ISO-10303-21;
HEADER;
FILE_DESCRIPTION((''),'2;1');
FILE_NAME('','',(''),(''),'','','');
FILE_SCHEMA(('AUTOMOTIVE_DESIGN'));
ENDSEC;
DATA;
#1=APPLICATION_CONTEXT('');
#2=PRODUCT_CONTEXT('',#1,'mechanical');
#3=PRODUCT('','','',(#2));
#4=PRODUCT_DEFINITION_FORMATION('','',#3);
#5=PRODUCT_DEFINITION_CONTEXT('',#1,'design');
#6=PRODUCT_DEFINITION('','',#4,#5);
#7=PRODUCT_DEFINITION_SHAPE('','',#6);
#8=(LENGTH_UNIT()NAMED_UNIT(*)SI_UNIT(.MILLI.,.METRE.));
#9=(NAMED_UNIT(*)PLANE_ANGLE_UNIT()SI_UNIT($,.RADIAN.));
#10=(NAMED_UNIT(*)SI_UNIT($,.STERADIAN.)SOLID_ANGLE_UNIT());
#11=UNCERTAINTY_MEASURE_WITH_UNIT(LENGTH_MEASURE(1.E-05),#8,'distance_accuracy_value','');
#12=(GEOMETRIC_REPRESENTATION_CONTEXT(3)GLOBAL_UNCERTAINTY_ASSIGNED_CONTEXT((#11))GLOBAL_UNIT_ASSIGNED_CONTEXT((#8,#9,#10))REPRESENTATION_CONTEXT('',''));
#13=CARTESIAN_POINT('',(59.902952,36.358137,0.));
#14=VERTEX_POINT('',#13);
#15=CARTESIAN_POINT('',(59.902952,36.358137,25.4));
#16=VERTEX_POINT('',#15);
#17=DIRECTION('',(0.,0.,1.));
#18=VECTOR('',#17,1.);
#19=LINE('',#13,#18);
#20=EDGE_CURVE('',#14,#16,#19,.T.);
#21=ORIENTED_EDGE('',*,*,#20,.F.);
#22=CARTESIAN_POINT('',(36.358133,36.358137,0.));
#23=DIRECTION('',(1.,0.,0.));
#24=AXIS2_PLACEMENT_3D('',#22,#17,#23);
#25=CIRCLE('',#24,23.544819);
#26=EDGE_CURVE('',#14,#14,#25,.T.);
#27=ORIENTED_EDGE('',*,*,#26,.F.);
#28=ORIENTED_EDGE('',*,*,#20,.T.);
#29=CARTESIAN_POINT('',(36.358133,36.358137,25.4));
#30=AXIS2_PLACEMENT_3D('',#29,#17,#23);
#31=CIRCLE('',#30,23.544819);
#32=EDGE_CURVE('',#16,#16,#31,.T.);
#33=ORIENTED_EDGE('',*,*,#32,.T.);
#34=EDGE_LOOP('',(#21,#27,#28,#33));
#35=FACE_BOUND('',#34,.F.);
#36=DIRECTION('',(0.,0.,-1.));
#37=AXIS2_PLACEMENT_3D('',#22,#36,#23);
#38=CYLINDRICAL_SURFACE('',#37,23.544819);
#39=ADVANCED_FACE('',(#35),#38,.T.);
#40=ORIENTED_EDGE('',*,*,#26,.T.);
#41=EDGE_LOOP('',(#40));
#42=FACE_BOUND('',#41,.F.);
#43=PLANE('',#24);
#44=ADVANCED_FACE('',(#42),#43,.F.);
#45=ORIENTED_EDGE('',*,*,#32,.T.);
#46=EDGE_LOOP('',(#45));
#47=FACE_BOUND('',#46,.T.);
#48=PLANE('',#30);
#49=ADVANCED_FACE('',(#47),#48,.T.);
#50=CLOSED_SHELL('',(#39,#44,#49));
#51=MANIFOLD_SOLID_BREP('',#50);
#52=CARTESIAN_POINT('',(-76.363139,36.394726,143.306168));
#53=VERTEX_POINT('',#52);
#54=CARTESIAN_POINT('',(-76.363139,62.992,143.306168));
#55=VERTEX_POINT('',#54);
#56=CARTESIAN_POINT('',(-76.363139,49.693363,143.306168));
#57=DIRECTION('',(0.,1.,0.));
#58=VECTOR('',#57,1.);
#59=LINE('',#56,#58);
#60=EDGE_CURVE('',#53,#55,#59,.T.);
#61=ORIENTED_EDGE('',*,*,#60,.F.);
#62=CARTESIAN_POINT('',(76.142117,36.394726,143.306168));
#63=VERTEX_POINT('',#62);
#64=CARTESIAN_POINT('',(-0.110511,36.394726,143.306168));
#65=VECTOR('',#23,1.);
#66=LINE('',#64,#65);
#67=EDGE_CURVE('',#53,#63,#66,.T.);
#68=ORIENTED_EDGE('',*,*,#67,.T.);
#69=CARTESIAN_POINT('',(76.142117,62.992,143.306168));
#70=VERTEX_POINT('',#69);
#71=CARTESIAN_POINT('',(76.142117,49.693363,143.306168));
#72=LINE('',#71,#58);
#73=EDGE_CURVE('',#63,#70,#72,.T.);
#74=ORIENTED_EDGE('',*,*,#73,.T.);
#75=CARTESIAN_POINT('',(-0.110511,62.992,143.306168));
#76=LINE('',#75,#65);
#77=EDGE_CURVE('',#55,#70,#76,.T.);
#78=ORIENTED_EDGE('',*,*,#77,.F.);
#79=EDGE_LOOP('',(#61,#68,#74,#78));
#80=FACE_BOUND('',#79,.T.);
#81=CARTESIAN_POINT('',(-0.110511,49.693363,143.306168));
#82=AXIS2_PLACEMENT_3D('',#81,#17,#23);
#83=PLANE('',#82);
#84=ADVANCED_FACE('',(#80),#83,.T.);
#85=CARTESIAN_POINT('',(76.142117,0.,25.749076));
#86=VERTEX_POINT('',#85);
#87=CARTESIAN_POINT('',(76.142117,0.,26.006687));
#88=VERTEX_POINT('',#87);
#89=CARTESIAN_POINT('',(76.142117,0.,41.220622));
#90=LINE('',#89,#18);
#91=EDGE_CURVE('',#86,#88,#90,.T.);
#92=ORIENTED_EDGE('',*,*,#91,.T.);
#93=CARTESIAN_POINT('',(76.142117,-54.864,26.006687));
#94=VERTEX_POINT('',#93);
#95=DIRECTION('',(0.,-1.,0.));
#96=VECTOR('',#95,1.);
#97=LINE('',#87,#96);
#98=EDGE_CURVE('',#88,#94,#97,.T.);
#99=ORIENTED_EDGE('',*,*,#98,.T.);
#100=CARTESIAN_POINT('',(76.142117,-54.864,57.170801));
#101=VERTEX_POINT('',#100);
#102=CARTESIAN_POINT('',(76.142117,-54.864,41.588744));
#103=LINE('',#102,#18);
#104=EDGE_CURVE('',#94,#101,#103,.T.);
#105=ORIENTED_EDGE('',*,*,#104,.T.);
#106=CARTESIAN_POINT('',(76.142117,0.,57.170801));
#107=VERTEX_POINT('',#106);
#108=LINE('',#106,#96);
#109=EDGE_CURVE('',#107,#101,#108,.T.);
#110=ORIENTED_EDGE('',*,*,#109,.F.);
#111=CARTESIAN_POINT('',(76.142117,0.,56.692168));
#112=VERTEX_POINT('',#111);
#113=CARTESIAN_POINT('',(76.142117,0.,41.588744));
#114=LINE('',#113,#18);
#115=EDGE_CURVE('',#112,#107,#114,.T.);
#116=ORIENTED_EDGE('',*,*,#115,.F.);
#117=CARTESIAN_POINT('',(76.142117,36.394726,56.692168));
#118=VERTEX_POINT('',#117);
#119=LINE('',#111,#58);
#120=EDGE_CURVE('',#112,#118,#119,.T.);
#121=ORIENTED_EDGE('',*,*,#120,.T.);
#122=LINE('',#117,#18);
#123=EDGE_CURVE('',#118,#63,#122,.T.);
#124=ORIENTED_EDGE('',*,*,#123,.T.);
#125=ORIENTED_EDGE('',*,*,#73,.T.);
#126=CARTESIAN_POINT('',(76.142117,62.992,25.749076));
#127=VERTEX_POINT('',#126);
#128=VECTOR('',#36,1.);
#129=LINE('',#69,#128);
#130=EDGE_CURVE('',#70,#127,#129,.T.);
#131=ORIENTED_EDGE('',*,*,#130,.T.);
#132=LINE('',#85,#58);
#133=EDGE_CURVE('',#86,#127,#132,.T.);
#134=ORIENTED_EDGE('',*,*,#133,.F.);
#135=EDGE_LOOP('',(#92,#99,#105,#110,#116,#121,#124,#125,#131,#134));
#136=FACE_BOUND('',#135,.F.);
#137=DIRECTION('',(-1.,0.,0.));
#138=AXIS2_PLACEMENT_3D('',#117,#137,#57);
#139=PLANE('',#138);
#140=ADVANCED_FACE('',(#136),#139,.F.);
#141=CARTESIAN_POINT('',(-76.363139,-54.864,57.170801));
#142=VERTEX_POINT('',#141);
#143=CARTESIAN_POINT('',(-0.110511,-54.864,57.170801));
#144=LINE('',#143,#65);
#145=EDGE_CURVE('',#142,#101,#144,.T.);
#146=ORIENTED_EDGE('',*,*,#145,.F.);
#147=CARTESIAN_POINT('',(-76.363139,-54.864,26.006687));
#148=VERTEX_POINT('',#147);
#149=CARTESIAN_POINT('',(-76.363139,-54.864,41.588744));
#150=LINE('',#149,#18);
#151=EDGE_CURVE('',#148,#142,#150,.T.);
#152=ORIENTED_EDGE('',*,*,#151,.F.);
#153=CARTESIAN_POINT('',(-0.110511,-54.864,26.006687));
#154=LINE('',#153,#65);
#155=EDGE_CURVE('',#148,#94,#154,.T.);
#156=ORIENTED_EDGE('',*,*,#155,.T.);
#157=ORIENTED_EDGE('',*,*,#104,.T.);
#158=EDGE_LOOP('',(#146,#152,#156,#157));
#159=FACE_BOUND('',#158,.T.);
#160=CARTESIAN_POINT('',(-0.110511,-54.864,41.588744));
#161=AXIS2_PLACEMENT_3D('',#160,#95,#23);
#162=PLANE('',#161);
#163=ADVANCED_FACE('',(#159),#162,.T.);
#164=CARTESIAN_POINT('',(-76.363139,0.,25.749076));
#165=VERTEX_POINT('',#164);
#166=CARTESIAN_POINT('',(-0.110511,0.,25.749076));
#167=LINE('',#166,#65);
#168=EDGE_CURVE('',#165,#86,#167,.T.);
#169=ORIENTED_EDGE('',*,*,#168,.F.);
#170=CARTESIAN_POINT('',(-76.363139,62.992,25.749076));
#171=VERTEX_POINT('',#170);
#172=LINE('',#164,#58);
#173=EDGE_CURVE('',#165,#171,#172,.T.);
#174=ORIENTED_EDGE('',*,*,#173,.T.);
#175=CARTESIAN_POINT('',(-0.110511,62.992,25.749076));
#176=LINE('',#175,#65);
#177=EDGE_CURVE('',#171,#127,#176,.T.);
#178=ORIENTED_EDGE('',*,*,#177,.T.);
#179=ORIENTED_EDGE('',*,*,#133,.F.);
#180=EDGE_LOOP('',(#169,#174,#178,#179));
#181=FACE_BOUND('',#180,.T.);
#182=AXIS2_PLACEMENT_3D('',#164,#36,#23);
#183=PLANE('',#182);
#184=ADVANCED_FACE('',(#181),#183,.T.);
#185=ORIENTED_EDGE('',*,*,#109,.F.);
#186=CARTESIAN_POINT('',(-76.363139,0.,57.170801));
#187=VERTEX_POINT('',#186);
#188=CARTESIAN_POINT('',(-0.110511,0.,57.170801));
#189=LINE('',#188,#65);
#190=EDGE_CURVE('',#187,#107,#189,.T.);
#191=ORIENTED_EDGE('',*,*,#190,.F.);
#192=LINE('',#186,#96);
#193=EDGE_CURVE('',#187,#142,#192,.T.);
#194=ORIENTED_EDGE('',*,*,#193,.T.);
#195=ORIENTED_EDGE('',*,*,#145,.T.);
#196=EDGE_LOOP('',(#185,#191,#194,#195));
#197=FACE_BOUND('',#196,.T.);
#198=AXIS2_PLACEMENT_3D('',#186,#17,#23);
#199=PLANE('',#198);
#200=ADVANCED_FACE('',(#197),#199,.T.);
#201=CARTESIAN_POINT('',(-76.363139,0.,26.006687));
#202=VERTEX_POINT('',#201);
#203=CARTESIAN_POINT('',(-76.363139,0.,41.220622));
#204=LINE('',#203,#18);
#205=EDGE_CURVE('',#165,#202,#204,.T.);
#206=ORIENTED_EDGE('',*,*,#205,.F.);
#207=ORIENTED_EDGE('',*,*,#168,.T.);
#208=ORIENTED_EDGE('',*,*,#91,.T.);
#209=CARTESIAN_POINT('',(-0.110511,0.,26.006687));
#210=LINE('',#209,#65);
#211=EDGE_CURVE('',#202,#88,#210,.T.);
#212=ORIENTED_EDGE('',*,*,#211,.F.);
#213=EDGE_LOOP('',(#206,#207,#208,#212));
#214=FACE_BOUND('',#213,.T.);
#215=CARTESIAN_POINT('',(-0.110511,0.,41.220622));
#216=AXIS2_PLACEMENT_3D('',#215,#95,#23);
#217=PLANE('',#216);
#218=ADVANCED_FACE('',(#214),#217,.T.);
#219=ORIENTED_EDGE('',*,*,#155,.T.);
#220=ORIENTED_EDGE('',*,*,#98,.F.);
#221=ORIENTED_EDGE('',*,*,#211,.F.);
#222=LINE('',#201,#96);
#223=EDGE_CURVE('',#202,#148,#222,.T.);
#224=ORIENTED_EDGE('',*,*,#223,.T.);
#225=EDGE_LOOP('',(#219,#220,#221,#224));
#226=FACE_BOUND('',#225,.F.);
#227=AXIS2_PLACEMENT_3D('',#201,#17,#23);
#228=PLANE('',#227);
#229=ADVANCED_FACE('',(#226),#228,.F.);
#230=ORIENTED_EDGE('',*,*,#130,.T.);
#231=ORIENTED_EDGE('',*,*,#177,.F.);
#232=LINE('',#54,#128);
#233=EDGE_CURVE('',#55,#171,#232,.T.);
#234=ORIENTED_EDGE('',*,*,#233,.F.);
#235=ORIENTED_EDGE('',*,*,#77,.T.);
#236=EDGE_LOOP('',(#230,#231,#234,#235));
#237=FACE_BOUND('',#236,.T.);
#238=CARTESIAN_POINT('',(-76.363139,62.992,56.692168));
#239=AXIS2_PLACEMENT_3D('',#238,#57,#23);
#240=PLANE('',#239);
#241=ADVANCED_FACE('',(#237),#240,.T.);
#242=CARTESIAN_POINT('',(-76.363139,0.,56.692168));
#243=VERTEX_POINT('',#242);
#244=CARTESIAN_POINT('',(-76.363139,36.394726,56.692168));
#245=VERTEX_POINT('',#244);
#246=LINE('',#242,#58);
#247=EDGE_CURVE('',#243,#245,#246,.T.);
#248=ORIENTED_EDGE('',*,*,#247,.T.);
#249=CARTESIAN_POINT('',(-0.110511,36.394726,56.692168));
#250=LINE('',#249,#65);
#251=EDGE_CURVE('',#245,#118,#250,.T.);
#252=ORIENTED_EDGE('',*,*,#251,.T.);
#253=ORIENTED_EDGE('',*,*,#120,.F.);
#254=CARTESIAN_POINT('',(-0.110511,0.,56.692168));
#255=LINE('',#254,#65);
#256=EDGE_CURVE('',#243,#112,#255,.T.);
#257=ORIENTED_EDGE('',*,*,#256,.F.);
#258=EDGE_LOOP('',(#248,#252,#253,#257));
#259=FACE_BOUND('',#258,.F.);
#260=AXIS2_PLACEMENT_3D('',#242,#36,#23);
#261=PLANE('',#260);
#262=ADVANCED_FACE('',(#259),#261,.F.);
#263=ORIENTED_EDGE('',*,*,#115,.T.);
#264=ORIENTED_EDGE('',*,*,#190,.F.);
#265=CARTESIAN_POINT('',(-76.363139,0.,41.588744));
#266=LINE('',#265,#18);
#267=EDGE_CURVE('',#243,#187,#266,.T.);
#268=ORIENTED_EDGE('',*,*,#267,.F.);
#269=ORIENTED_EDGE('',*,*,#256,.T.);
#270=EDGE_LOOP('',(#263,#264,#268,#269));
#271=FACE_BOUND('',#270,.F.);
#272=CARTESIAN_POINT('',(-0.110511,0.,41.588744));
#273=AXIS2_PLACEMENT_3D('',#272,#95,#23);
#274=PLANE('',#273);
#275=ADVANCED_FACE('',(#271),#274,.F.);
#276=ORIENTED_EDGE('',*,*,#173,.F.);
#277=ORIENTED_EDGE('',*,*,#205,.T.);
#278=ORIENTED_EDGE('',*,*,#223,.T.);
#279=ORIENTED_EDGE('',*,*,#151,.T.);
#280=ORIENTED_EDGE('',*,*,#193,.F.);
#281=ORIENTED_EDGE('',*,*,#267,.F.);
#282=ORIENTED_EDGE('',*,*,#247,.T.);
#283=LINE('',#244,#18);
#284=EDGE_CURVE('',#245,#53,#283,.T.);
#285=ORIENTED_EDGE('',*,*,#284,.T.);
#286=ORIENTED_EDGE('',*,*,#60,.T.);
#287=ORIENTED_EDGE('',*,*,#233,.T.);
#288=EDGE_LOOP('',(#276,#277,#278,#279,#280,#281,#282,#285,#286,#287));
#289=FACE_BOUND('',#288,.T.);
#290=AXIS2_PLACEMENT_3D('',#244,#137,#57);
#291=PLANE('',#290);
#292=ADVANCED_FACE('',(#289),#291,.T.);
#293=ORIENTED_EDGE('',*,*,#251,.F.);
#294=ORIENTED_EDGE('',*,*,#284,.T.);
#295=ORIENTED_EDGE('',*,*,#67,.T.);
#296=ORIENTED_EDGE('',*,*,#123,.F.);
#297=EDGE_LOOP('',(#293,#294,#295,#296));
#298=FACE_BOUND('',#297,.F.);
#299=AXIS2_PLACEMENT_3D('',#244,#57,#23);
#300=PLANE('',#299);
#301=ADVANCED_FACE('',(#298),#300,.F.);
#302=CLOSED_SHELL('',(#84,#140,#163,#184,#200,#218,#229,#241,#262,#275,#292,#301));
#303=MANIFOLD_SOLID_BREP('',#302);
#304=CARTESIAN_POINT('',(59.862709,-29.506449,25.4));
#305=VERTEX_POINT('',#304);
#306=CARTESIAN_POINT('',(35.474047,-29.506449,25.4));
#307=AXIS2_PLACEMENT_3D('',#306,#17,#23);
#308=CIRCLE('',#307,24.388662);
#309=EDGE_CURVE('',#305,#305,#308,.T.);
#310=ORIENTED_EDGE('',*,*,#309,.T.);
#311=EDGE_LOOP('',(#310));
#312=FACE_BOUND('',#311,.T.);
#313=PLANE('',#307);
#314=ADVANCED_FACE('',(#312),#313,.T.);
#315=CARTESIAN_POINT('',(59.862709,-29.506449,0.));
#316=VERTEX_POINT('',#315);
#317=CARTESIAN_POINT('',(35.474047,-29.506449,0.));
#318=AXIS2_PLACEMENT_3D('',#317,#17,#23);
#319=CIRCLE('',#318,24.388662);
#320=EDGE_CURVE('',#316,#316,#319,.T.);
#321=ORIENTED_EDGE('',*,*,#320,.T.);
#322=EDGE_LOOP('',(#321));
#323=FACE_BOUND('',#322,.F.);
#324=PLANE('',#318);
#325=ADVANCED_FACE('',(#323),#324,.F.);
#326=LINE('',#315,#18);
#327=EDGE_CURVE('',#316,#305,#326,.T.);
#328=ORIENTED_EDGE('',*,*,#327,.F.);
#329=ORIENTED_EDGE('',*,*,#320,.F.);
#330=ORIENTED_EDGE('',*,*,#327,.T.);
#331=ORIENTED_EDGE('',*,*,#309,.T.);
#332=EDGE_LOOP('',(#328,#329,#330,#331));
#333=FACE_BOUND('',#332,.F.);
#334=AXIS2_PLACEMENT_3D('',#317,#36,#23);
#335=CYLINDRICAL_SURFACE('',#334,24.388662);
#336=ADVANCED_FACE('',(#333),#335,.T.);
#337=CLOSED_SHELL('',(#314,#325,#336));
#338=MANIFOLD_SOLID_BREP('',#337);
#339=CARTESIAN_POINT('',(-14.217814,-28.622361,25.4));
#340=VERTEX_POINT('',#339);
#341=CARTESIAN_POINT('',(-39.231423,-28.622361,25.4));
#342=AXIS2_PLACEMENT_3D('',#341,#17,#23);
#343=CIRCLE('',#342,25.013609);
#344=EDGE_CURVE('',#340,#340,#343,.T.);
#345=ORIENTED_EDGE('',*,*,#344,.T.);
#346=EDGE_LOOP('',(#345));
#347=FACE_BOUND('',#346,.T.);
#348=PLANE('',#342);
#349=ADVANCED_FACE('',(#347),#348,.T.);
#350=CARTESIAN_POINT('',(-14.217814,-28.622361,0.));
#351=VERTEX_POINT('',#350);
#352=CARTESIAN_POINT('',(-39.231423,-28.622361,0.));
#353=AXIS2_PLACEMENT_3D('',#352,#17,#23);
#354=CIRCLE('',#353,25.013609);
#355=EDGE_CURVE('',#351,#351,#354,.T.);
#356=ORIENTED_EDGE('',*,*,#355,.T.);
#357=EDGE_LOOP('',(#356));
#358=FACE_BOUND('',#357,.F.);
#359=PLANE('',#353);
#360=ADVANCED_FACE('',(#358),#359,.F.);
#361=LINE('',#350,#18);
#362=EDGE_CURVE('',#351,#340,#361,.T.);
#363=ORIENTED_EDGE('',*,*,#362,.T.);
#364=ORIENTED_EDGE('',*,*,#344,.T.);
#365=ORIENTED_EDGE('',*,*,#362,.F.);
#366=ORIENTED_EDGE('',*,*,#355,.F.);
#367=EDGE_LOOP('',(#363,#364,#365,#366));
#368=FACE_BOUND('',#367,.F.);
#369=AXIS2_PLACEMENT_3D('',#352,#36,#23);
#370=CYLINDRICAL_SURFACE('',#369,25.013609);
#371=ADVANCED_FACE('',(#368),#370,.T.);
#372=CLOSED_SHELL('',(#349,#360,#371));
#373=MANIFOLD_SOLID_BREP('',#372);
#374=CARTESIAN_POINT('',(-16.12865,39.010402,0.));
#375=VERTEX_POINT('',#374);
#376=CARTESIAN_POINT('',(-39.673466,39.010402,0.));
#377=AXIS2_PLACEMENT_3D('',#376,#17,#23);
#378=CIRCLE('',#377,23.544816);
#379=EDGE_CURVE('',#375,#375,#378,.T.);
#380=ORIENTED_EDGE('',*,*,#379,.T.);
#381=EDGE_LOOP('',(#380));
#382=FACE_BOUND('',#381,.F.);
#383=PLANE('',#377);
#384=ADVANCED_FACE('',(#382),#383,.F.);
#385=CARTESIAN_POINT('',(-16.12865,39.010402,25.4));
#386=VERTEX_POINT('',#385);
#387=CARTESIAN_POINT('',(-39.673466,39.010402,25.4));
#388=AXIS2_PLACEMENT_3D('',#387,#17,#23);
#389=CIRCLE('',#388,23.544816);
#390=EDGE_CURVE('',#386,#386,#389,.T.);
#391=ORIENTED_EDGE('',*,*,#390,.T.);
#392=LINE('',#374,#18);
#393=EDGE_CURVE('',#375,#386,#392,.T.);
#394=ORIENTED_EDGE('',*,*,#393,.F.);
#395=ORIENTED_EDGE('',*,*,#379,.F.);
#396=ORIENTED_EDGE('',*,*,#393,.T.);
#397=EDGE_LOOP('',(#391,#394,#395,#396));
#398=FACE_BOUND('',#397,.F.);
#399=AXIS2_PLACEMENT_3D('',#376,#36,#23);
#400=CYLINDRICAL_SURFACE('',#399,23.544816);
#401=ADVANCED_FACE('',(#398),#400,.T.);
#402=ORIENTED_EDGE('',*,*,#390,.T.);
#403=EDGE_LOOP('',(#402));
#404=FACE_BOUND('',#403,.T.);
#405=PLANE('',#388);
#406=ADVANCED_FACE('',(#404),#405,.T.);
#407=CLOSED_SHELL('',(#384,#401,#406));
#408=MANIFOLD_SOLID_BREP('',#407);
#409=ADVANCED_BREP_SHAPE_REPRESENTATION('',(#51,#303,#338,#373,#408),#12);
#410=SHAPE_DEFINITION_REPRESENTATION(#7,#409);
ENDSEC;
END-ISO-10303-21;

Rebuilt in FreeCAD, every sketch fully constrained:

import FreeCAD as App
import Part
import Sketcher
Q = App.Units.Quantity

doc = App.newDocument("Part")
body = doc.addObject("PartDesign::Body", "Body")
body.AllowCompound = True

# Sketch on XY plane
sketch1 = body.newObject("Sketcher::SketchObject", "Sketch")
sketch1.AttachmentSupport = (doc.getObject("XY_Plane"), [""])
sketch1.MapMode = "FlatFace"
sketch1.addGeometry(Part.Circle(App.Vector(-40, 39, 0), App.Vector(0, 0, 1), 24), False)
sketch1.addGeometry(Part.Circle(App.Vector(36, 36, 0), App.Vector(0, 0, 1), 24), False)
sketch1.addGeometry(Part.Circle(App.Vector(-39, -29, 0), App.Vector(0, 0, 1), 25), False)
sketch1.addGeometry(Part.Circle(App.Vector(35, -30, 0), App.Vector(0, 0, 1), 24), False)
sketch1.addConstraint(Sketcher.Constraint("Diameter", 0, 47.089632))
sketch1.addConstraint(Sketcher.Constraint("Diameter", 1, 47.089638))
sketch1.addConstraint(Sketcher.Constraint("Diameter", 2, 50.027218))
sketch1.addConstraint(Sketcher.Constraint("Diameter", 3, 48.777324))
sketch1.addConstraint(Sketcher.Constraint("DistanceX", 0, 3, 1, 3, 76.031599))
sketch1.addConstraint(Sketcher.Constraint("DistanceY", 2, 3, -1, 1, 28.622361))
sketch1.addConstraint(Sketcher.Constraint("DistanceY", 3, 3, -1, 1, 29.506449))
sketch1.addConstraint(Sketcher.Constraint("DistanceX", 2, 3, 3, 3, 74.70547))
sketch1.addConstraint(Sketcher.Constraint("DistanceY", 3, 3, 0, 3, 68.516851))
sketch1.addConstraint(Sketcher.Constraint("DistanceX", 0, 3, -1, 1, 39.673466))
sketch1.addConstraint(Sketcher.Constraint("DistanceY", -1, 1, 1, 3, 36.358137))
sketch1.addConstraint(Sketcher.Constraint("DistanceX", 2, 3, -1, 1, 39.231423))
pad1 = body.newObject("PartDesign::Pad", "Pad")
pad1.Profile = sketch1
pad1.Length = Q("1 in")
body2 = doc.addObject("PartDesign::Body", "Body001")

# Sketch on XZ plane
sketch2 = body2.newObject("Sketcher::SketchObject", "Sketch001")
sketch2.AttachmentSupport = (doc.getObject("XZ_Plane001"), [""])
sketch2.MapMode = "FlatFace"
sketch2.addGeometry(Part.LineSegment(App.Vector(-76, 57, 0), App.Vector(-76, 26, 0)), False)
sketch2.addGeometry(Part.LineSegment(App.Vector(-76, 26, 0), App.Vector(76, 26, 0)), False)
sketch2.addGeometry(Part.LineSegment(App.Vector(76, 26, 0), App.Vector(76, 57, 0)), False)
sketch2.addGeometry(Part.LineSegment(App.Vector(76, 57, 0), App.Vector(-76, 57, 0)), False)
sketch2.addConstraint(Sketcher.Constraint("Coincident", 0, 2, 1, 1))
sketch2.addConstraint(Sketcher.Constraint("Coincident", 1, 2, 2, 1))
sketch2.addConstraint(Sketcher.Constraint("Coincident", 2, 2, 3, 1))
sketch2.addConstraint(Sketcher.Constraint("Coincident", 3, 2, 0, 1))
sketch2.addConstraint(Sketcher.Constraint("Vertical", 0))
sketch2.addConstraint(Sketcher.Constraint("Horizontal", 1))
sketch2.addConstraint(Sketcher.Constraint("Vertical", 2))
sketch2.addConstraint(Sketcher.Constraint("Horizontal", 3))
sketch2.addConstraint(Sketcher.Constraint("DistanceX", 1, 1, 1, 2, 152.505256))
sketch2.addConstraint(Sketcher.Constraint("DistanceY", 0, 2, 0, 1, 30.943092))
sketch2.addConstraint(Sketcher.Constraint("DistanceX", 0, 2, -1, 1, 76.363139))
sketch2.addConstraint(Sketcher.Constraint("DistanceY", -1, 1, 2, 2, 56.692168))
pad2 = body2.newObject("PartDesign::Pad", "Pad001")
pad2.Profile = sketch2
pad2.Length = Q("2.48 in")
pad2.Reversed = True

# Sketch on XZ plane
sketch3 = body2.newObject("Sketcher::SketchObject", "Sketch002")
sketch3.AttachmentSupport = (doc.getObject("XZ_Plane001"), [""])
sketch3.MapMode = "FlatFace"
sketch3.addGeometry(Part.LineSegment(App.Vector(-76, 57, 0), App.Vector(-76, 26, 0)), False)
sketch3.addGeometry(Part.LineSegment(App.Vector(-76, 26, 0), App.Vector(76, 26, 0)), False)
sketch3.addGeometry(Part.LineSegment(App.Vector(76, 26, 0), App.Vector(76, 57, 0)), False)
sketch3.addGeometry(Part.LineSegment(App.Vector(76, 57, 0), App.Vector(-76, 57, 0)), False)
sketch3.addConstraint(Sketcher.Constraint("Coincident", 0, 2, 1, 1))
sketch3.addConstraint(Sketcher.Constraint("Coincident", 1, 2, 2, 1))
sketch3.addConstraint(Sketcher.Constraint("Coincident", 2, 2, 3, 1))
sketch3.addConstraint(Sketcher.Constraint("Coincident", 3, 2, 0, 1))
sketch3.addConstraint(Sketcher.Constraint("Vertical", 0))
sketch3.addConstraint(Sketcher.Constraint("Horizontal", 1))
sketch3.addConstraint(Sketcher.Constraint("Vertical", 2))
sketch3.addConstraint(Sketcher.Constraint("Horizontal", 3))
sketch3.addConstraint(Sketcher.Constraint("DistanceY", -1, 1, 2, 2, 57.170801))
sketch3.addConstraint(Sketcher.Constraint("DistanceX", 1, 1, 1, 2, 152.505256))
sketch3.addConstraint(Sketcher.Constraint("DistanceY", 0, 2, 0, 1, 31.164114))
sketch3.addConstraint(Sketcher.Constraint("DistanceX", 0, 2, -1, 1, 76.363139))
pad3 = body2.newObject("PartDesign::Pad", "Pad002")
pad3.Profile = sketch3
pad3.Length = Q("2.16 in")

# Sketch on XY plane
sketch4 = body2.newObject("Sketcher::SketchObject", "Sketch003")
sketch4.AttachmentSupport = (doc.getObject("XY_Plane001"), [""])
sketch4.MapMode = "FlatFace"
sketch4.AttachmentOffset = App.Placement(App.Vector(0, 0, 56.692168), App.Rotation())
sketch4.addGeometry(Part.LineSegment(App.Vector(-76, 63, 0), App.Vector(-76, 36, 0)), False)
sketch4.addGeometry(Part.LineSegment(App.Vector(-76, 36, 0), App.Vector(76, 36, 0)), False)
sketch4.addGeometry(Part.LineSegment(App.Vector(76, 36, 0), App.Vector(76, 63, 0)), False)
sketch4.addGeometry(Part.LineSegment(App.Vector(76, 63, 0), App.Vector(-76, 63, 0)), False)
sketch4.addConstraint(Sketcher.Constraint("Coincident", 0, 2, 1, 1))
sketch4.addConstraint(Sketcher.Constraint("Coincident", 1, 2, 2, 1))
sketch4.addConstraint(Sketcher.Constraint("Coincident", 2, 2, 3, 1))
sketch4.addConstraint(Sketcher.Constraint("Coincident", 3, 2, 0, 1))
sketch4.addConstraint(Sketcher.Constraint("Vertical", 0))
sketch4.addConstraint(Sketcher.Constraint("Horizontal", 1))
sketch4.addConstraint(Sketcher.Constraint("Vertical", 2))
sketch4.addConstraint(Sketcher.Constraint("Horizontal", 3))
sketch4.addConstraint(Sketcher.Constraint("DistanceY", -1, 1, 2, 2, Q("2.48 in")))
sketch4.addConstraint(Sketcher.Constraint("DistanceX", 1, 1, 1, 2, 152.505256))
sketch4.addConstraint(Sketcher.Constraint("DistanceY", 0, 2, 0, 1, 26.597274))
sketch4.addConstraint(Sketcher.Constraint("DistanceX", 0, 2, -1, 1, 76.363139))
pad4 = body2.newObject("PartDesign::Pad", "Pad003")
pad4.Profile = sketch4
pad4.Length = Q("3.41 in")

doc.recompute()
